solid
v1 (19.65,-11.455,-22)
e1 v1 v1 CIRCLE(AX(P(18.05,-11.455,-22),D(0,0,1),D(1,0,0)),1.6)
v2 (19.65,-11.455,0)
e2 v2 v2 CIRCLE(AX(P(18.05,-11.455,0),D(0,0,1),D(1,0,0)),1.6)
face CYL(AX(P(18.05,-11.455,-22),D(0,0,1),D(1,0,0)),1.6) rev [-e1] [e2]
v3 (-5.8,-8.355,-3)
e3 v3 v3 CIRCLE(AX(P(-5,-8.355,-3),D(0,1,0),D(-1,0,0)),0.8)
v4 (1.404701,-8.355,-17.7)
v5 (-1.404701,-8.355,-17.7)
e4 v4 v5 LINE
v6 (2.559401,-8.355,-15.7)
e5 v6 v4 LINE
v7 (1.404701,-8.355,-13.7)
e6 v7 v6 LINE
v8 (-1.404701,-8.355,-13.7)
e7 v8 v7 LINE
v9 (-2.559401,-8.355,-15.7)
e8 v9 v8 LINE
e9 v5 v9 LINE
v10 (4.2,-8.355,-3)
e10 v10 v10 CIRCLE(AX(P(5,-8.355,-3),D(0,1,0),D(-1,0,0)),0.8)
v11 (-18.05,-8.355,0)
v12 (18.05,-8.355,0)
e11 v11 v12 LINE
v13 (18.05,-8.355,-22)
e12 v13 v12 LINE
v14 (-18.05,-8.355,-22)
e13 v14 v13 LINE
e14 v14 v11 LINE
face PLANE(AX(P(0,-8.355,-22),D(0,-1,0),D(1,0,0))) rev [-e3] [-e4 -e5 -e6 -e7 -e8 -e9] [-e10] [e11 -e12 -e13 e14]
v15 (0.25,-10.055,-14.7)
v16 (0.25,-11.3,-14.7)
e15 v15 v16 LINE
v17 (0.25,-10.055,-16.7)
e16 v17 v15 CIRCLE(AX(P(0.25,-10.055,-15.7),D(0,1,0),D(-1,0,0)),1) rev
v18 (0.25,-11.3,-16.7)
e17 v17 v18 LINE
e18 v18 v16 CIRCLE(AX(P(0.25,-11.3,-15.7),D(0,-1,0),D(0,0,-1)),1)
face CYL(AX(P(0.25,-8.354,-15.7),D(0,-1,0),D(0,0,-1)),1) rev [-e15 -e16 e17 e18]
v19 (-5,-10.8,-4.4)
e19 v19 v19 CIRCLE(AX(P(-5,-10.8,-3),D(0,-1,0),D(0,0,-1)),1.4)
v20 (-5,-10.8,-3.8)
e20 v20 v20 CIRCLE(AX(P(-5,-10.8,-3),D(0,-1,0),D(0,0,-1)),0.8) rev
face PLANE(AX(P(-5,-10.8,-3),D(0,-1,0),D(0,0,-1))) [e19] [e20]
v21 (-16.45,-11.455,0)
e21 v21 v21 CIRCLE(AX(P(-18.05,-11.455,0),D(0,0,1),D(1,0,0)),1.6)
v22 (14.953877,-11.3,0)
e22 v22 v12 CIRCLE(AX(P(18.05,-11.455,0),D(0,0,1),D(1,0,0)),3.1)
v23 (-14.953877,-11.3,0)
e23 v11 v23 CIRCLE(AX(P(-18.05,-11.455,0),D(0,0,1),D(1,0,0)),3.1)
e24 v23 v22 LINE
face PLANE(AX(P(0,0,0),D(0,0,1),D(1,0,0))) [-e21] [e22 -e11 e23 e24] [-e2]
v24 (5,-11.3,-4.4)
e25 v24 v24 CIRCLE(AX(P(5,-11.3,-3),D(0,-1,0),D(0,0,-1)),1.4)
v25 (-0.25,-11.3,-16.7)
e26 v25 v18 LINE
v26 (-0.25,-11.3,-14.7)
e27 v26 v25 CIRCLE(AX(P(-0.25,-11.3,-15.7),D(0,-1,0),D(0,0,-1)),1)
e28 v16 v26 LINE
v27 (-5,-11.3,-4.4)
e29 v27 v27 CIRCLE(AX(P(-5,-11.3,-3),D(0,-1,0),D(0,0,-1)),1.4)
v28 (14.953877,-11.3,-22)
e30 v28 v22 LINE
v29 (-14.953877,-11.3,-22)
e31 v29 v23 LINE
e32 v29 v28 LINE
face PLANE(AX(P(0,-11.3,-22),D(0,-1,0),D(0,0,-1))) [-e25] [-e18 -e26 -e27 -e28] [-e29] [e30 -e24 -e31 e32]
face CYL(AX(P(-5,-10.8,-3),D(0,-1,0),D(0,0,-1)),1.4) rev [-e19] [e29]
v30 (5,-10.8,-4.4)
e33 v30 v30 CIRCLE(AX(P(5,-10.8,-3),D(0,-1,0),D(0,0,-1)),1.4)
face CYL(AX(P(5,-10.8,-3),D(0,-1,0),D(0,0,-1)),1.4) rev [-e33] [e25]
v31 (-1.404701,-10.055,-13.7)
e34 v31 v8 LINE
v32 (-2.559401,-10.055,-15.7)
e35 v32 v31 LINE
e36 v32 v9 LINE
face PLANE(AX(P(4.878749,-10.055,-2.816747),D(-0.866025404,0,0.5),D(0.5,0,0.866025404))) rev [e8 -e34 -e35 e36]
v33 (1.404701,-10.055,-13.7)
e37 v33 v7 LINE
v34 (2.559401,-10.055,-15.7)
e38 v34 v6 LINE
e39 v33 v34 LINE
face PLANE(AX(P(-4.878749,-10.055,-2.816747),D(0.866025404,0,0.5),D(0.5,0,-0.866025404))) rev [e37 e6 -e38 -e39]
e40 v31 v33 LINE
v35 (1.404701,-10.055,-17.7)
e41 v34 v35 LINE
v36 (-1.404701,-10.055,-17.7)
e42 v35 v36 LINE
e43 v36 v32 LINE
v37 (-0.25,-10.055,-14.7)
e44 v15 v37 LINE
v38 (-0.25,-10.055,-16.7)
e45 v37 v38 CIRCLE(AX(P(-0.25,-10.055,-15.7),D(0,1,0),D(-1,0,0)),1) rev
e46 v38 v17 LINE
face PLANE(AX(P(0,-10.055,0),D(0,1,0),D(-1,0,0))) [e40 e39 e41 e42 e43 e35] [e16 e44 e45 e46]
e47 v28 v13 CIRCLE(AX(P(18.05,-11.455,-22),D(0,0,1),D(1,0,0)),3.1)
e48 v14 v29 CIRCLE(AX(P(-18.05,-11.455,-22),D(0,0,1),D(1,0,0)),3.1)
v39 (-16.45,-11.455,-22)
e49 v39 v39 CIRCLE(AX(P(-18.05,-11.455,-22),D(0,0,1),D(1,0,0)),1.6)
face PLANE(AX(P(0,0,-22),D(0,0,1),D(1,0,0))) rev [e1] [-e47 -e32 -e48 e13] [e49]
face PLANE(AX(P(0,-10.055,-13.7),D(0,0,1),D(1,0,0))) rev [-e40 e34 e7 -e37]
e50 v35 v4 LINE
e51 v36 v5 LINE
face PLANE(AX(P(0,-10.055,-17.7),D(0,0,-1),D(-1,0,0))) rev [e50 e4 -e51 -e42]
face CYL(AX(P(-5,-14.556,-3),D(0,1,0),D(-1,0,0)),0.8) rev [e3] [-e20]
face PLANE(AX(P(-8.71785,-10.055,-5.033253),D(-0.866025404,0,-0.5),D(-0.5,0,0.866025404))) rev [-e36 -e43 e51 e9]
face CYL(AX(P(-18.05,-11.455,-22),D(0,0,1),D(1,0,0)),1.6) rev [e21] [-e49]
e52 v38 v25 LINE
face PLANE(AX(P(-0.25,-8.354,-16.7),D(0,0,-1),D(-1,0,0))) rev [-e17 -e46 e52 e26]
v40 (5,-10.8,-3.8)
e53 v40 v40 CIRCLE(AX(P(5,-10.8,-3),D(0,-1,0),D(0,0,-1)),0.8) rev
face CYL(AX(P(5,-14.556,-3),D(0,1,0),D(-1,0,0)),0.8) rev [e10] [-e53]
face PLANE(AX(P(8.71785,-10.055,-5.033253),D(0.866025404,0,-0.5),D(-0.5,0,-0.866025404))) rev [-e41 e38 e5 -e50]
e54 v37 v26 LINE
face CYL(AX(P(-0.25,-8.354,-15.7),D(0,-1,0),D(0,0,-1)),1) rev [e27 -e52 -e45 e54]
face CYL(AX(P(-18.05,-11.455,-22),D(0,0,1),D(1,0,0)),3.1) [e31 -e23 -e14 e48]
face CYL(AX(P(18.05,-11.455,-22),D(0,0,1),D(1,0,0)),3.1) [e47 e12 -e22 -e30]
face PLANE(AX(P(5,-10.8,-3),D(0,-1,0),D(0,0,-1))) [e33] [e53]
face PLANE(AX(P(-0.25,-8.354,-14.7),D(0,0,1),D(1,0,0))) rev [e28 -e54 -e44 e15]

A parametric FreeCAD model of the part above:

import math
import FreeCAD as App
import Part
import Sketcher
from FreeCAD import Vector
Q = App.Units.Quantity


def add_polygon(sketch, points):
    """Adds a closed chain of lines whose ends are joined by coincident constraints."""
    first, n = sketch.GeometryCount, len(points)
    for a, b in zip(points, points[1:] + points[:1]):
        sketch.addGeometry(Part.LineSegment(App.Vector(*a, 0), App.Vector(*b, 0)), False)
    for i in range(n):
        sketch.addConstraint(Sketcher.Constraint("Coincident", first + i, 2, first + (i + 1) % n, 1))

doc = App.newDocument("Part")
body = doc.addObject("PartDesign::Body", "Body")

# Sketch on XY plane
sketch1 = body.newObject("Sketcher::SketchObject", "Sketch")
sketch1.AttachmentSupport = (doc.getObject("XY_Plane"), [""])
sketch1.MapMode = "FlatFace"
sketch1.addGeometry(Part.LineSegment(Vector(18.05, -8.355, 0), Vector(-18.05, -8.355, 0)), False)
sketch1.addGeometry(Part.ArcOfCircle(Part.Circle(Vector(-18.05, -11.455, 0), Vector(0, 0, 1), 3.1), math.radians(90), math.radians(362.865984)), False)
sketch1.addGeometry(Part.LineSegment(Vector(-14.953877, -11.3, 0), Vector(14.953877, -11.3, 0)), False)
sketch1.addGeometry(Part.ArcOfCircle(Part.Circle(Vector(18.05, -11.455, 0), Vector(0, 0, 1), 3.1), math.radians(177.134016), math.radians(450)), False)
sketch1.addGeometry(Part.Circle(Vector(18.05, -11.455, 0), Vector(0, 0, 1), 1.6), False)
sketch1.addGeometry(Part.Circle(Vector(-18.05, -11.455, 0), Vector(0, 0, 1), 1.6), False)
sketch1.addConstraint(Sketcher.Constraint("Tangent", 0, 2, 1, 1))
sketch1.addConstraint(Sketcher.Constraint("Coincident", 1, 2, 2, 1))
sketch1.addConstraint(Sketcher.Constraint("Coincident", 2, 2, 3, 1))
sketch1.addConstraint(Sketcher.Constraint("Tangent", 3, 2, 0, 1))
sketch1.addConstraint(Sketcher.Constraint("Horizontal", 0))
sketch1.addConstraint(Sketcher.Constraint("Horizontal", 2))
sketch1.addConstraint(Sketcher.Constraint("Coincident", 4, 3, 3, 3))
sketch1.addConstraint(Sketcher.Constraint("Coincident", 5, 3, 1, 3))
sketch1.addConstraint(Sketcher.Constraint("Equal", 1, 3))
sketch1.addConstraint(Sketcher.Constraint("Equal", 4, 5))
sketch1.addConstraint(Sketcher.Constraint("Diameter", 4, 3.2))
sketch1.addConstraint(Sketcher.Constraint("Radius", 1, 3.1))
sketch1.addConstraint(Sketcher.Constraint("DistanceX", 0, 2, 0, 1, 36.1))
sketch1.addConstraint(Sketcher.Constraint("DistanceY", 1, 2, -1, 1, 11.3))
sketch1.addConstraint(Sketcher.Constraint("DistanceX", 1, 3, -1, 1, 18.05))
sketch1.addConstraint(Sketcher.Constraint("DistanceY", 1, 3, -1, 1, 11.455))
pad1 = body.newObject("PartDesign::Pad", "Pad")
pad1.Profile = sketch1
pad1.Length = 22
pad1.Reversed = True

# Sketch on XZ plane
sketch2 = body.newObject("Sketcher::SketchObject", "Sketch001")
sketch2.AttachmentSupport = (doc.getObject("XZ_Plane"), [""])
sketch2.MapMode = "FlatFace"
sketch2.AttachmentOffset = App.Placement(Vector(0, 0, 11.3), App.Rotation())
sketch2.addGeometry(Part.LineSegment(Vector(0.25, -14.7, 0), Vector(-0.25, -14.7, 0)), False)
sketch2.addGeometry(Part.ArcOfCircle(Part.Circle(Vector(-0.25, -15.7, 0), Vector(0, 0, 1), 1), math.radians(90), math.radians(270)), False)
sketch2.addGeometry(Part.LineSegment(Vector(-0.25, -16.7, 0), Vector(0.25, -16.7, 0)), False)
sketch2.addGeometry(Part.ArcOfCircle(Part.Circle(Vector(0.25, -15.7, 0), Vector(0, 0, 1), 1), math.radians(-90), math.radians(90)), False)
sketch2.addConstraint(Sketcher.Constraint("Tangent", 0, 2, 1, 1))
sketch2.addConstraint(Sketcher.Constraint("Tangent", 1, 2, 2, 1))
sketch2.addConstraint(Sketcher.Constraint("Tangent", 2, 2, 3, 1))
sketch2.addConstraint(Sketcher.Constraint("Tangent", 3, 2, 0, 1))
sketch2.addConstraint(Sketcher.Constraint("Horizontal", 0))
sketch2.addConstraint(Sketcher.Constraint("Horizontal", 2))
sketch2.addConstraint(Sketcher.Constraint("Radius", 1, 1.0))
sketch2.addConstraint(Sketcher.Constraint("DistanceX", 0, 2, 0, 1, 0.5))
sketch2.addConstraint(Sketcher.Constraint("DistanceY", 1, 3, -1, 1, 15.7))
sketch2.addConstraint(Sketcher.Constraint("DistanceX", 1, 3, -1, 1, 0.25))
pocket1 = body.newObject("PartDesign::Pocket", "Pocket")
pocket1.Profile = sketch2
pocket1.Type = "UpToFirst"

# Sketch on XZ plane
sketch3 = body.newObject("Sketcher::SketchObject", "Sketch002")
sketch3.AttachmentSupport = (doc.getObject("XZ_Plane"), [""])
sketch3.MapMode = "FlatFace"
sketch3.AttachmentOffset = App.Placement(Vector(0, 0, 8.355), App.Rotation())
add_polygon(sketch3, [(1.404701, -13.7), (2.559401, -15.7), (1.404701, -17.7), (-1.404701, -17.7), (-2.559401, -15.7), (-1.404701, -13.7)])  # lines 0-5
sketch3.addConstraint(Sketcher.Constraint("Horizontal", 2))
sketch3.addConstraint(Sketcher.Constraint("Horizontal", 5))
sketch3.addConstraint(Sketcher.Constraint("Symmetric", 0, 2, 3, 2, -2))
sketch3.addConstraint(Sketcher.Constraint("Parallel", 0, 3))
sketch3.addConstraint(Sketcher.Constraint("Parallel", 1, 4))
sketch3.addConstraint(Sketcher.Constraint("Vertical", 2, 2, 4, 2))
sketch3.addConstraint(Sketcher.Constraint("Vertical", 1, 2, 5, 2))
sketch3.addConstraint(Sketcher.Constraint("Angle", 0, Q("-60 deg")))
sketch3.addConstraint(Sketcher.Constraint("DistanceY", 1, 2, 0, 2, 2.0))
sketch3.addConstraint(Sketcher.Constraint("DistanceY", 0, 2, -1, 1, 15.7))
sketch3.addConstraint(Sketcher.Constraint("DistanceX", 2, 2, 2, 1, 2.809401))
pocket2 = body.newObject("PartDesign::Pocket", "Pocket001")
pocket2.Profile = sketch3
pocket2.Length = 1.7
pocket2.Reversed = True

# Sketch on XZ plane
sketch4 = body.newObject("Sketcher::SketchObject", "Sketch003")
sketch4.AttachmentSupport = (doc.getObject("XZ_Plane"), [""])
sketch4.MapMode = "FlatFace"
sketch4.AttachmentOffset = App.Placement(Vector(0, 0, 8.355), App.Rotation())
sketch4.addGeometry(Part.Circle(Vector(-5, -3, 0), Vector(0, 0, 1), 0.8), False)
sketch4.addConstraint(Sketcher.Constraint("Diameter", 0, 1.6))
sketch4.addConstraint(Sketcher.Constraint("DistanceX", 0, 3, -1, 1, 5.0))
sketch4.addConstraint(Sketcher.Constraint("DistanceY", 0, 3, -1, 1, 3.0))
pocket3 = body.newObject("PartDesign::Pocket", "Pocket002")
pocket3.Profile = sketch4
pocket3.Type = "UpToFirst"
pocket3.Reversed = True

# Sketch on XZ plane
sketch5 = body.newObject("Sketcher::SketchObject", "Sketch004")
sketch5.AttachmentSupport = (doc.getObject("XZ_Plane"), [""])
sketch5.MapMode = "FlatFace"
sketch5.AttachmentOffset = App.Placement(Vector(0, 0, 8.355), App.Rotation())
sketch5.addGeometry(Part.Circle(Vector(5, -3, 0), Vector(0, 0, 1), 0.8), False)
sketch5.addConstraint(Sketcher.Constraint("Diameter", 0, 1.6))
sketch5.addConstraint(Sketcher.Constraint("DistanceX", -1, 1, 0, 3, 5.0))
sketch5.addConstraint(Sketcher.Constraint("DistanceY", 0, 3, -1, 1, 3.0))
pocket4 = body.newObject("PartDesign::Pocket", "Pocket003")
pocket4.Profile = sketch5
pocket4.Type = "UpToFirst"
pocket4.Reversed = True

# Sketch on XZ plane
sketch6 = body.newObject("Sketcher::SketchObject", "Sketch005")
sketch6.AttachmentSupport = (doc.getObject("XZ_Plane"), [""])
sketch6.MapMode = "FlatFace"
sketch6.AttachmentOffset = App.Placement(Vector(0, 0, 11.3), App.Rotation())
sketch6.addGeometry(Part.Circle(Vector(5, -3, 0), Vector(0, 0, 1), 1.4), False)
sketch6.addGeometry(Part.Circle(Vector(-5, -3, 0), Vector(0, 0, 1), 1.4), False)
sketch6.addConstraint(Sketcher.Constraint("Equal", 0, 1))
sketch6.addConstraint(Sketcher.Constraint("Symmetric", 0, 3, 1, 3, -2))
sketch6.addConstraint(Sketcher.Constraint("Diameter", 0, 2.8))
sketch6.addConstraint(Sketcher.Constraint("DistanceX", -1, 1, 0, 3, 5.0))
sketch6.addConstraint(Sketcher.Constraint("DistanceY", 0, 3, -1, 1, 3.0))
pocket5 = body.newObject("PartDesign::Pocket", "Pocket004")
pocket5.Profile = sketch6
pocket5.Length = 0.5

doc.recompute()
